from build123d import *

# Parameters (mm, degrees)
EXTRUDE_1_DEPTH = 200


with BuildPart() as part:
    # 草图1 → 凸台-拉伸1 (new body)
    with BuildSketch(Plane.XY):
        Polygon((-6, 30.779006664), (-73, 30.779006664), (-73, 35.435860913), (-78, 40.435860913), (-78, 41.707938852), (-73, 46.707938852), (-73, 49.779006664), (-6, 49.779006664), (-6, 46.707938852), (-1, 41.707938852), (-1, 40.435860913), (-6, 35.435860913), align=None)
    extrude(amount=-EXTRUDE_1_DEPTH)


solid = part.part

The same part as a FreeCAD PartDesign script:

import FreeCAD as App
import Part
import Sketcher
from FreeCAD import Vector
Q = App.Units.Quantity


def add_polygon(sketch, points):
    """Adds a closed chain of lines whose ends are joined by coincident constraints."""
    first, n = sketch.GeometryCount, len(points)
    for a, b in zip(points, points[1:] + points[:1]):
        sketch.addGeometry(Part.LineSegment(App.Vector(*a, 0), App.Vector(*b, 0)), False)
    for i in range(n):
        sketch.addConstraint(Sketcher.Constraint("Coincident", first + i, 2, first + (i + 1) % n, 1))

doc = App.newDocument("Part")
body = doc.addObject("PartDesign::Body", "Body")

sketch1 = body.newObject("Sketcher::SketchObject", "Sketch")
sketch1.AttachmentSupport = (doc.getObject("XY_Plane"), [""])
sketch1.MapMode = "FlatFace"
add_polygon(sketch1, [(-73, 30.8), (-6, 30.8), (-6, 35.4), (-1, 40.4), (-1, 41.7), (-6, 46.7), (-6, 49.8), (-73, 49.8), (-73, 46.7), (-78, 41.7), (-78, 40.4), (-73, 35.4)])
sketch1.addConstraint(Sketcher.Constraint("Horizontal", 0))
sketch1.addConstraint(Sketcher.Constraint("Vertical", 1))
sketch1.addConstraint(Sketcher.Constraint("Vertical", 3))
sketch1.addConstraint(Sketcher.Constraint("Vertical", 5))
sketch1.addConstraint(Sketcher.Constraint("Horizontal", 6))
sketch1.addConstraint(Sketcher.Constraint("Vertical", 7))
sketch1.addConstraint(Sketcher.Constraint("Vertical", 9))
sketch1.addConstraint(Sketcher.Constraint("Vertical", 11))
sketch1.addConstraint(Sketcher.Constraint("Perpendicular", 2, 4))
sketch1.addConstraint(Sketcher.Constraint("Perpendicular", 4, 8))
sketch1.addConstraint(Sketcher.Constraint("Perpendicular", 8, 10))
sketch1.addConstraint(Sketcher.Constraint("Horizontal", 4, 2, 7, 2))
sketch1.addConstraint(Sketcher.Constraint("Horizontal", 3, 2, 8, 2))
sketch1.addConstraint(Sketcher.Constraint("Horizontal", 2, 2, 9, 2))
sketch1.addConstraint(Sketcher.Constraint("Horizontal", 1, 2, 10, 2))
sketch1.addConstraint(Sketcher.Constraint("Vertical", 1, 2, 4, 2))
sketch1.addConstraint(Sketcher.Constraint("Vertical", 7, 2, 10, 2))
sketch1.addConstraint(Sketcher.Constraint("DistanceX", 0, 1, 0, 2, Q("67 mm")))
sketch1.addConstraint(Sketcher.Constraint("DistanceX", 0, 2, -1, 1, Q("6 mm")))
sketch1.addConstraint(Sketcher.Constraint("DistanceX", 2, 2, -1, 1, Q("1 mm")))
sketch1.addConstraint(Sketcher.Constraint("DistanceY", 0, 2, 5, 2, Q("19 mm")))
sketch1.addConstraint(Sketcher.Constraint("DistanceY", 1, 1, 1, 2, Q("4.656854 mm")))
sketch1.addConstraint(Sketcher.Constraint("DistanceY", 3, 1, 3, 2, Q("1.272078 mm")))
sketch1.addConstraint(Sketcher.Constraint("DistanceY", -1, 1, 1, 2, Q("35.435861 mm")))
pad1 = body.newObject("PartDesign::Pad", "Pad")
pad1.Profile = sketch1
pad1.Length = 200
pad1.Reversed = True

doc.recompute()
